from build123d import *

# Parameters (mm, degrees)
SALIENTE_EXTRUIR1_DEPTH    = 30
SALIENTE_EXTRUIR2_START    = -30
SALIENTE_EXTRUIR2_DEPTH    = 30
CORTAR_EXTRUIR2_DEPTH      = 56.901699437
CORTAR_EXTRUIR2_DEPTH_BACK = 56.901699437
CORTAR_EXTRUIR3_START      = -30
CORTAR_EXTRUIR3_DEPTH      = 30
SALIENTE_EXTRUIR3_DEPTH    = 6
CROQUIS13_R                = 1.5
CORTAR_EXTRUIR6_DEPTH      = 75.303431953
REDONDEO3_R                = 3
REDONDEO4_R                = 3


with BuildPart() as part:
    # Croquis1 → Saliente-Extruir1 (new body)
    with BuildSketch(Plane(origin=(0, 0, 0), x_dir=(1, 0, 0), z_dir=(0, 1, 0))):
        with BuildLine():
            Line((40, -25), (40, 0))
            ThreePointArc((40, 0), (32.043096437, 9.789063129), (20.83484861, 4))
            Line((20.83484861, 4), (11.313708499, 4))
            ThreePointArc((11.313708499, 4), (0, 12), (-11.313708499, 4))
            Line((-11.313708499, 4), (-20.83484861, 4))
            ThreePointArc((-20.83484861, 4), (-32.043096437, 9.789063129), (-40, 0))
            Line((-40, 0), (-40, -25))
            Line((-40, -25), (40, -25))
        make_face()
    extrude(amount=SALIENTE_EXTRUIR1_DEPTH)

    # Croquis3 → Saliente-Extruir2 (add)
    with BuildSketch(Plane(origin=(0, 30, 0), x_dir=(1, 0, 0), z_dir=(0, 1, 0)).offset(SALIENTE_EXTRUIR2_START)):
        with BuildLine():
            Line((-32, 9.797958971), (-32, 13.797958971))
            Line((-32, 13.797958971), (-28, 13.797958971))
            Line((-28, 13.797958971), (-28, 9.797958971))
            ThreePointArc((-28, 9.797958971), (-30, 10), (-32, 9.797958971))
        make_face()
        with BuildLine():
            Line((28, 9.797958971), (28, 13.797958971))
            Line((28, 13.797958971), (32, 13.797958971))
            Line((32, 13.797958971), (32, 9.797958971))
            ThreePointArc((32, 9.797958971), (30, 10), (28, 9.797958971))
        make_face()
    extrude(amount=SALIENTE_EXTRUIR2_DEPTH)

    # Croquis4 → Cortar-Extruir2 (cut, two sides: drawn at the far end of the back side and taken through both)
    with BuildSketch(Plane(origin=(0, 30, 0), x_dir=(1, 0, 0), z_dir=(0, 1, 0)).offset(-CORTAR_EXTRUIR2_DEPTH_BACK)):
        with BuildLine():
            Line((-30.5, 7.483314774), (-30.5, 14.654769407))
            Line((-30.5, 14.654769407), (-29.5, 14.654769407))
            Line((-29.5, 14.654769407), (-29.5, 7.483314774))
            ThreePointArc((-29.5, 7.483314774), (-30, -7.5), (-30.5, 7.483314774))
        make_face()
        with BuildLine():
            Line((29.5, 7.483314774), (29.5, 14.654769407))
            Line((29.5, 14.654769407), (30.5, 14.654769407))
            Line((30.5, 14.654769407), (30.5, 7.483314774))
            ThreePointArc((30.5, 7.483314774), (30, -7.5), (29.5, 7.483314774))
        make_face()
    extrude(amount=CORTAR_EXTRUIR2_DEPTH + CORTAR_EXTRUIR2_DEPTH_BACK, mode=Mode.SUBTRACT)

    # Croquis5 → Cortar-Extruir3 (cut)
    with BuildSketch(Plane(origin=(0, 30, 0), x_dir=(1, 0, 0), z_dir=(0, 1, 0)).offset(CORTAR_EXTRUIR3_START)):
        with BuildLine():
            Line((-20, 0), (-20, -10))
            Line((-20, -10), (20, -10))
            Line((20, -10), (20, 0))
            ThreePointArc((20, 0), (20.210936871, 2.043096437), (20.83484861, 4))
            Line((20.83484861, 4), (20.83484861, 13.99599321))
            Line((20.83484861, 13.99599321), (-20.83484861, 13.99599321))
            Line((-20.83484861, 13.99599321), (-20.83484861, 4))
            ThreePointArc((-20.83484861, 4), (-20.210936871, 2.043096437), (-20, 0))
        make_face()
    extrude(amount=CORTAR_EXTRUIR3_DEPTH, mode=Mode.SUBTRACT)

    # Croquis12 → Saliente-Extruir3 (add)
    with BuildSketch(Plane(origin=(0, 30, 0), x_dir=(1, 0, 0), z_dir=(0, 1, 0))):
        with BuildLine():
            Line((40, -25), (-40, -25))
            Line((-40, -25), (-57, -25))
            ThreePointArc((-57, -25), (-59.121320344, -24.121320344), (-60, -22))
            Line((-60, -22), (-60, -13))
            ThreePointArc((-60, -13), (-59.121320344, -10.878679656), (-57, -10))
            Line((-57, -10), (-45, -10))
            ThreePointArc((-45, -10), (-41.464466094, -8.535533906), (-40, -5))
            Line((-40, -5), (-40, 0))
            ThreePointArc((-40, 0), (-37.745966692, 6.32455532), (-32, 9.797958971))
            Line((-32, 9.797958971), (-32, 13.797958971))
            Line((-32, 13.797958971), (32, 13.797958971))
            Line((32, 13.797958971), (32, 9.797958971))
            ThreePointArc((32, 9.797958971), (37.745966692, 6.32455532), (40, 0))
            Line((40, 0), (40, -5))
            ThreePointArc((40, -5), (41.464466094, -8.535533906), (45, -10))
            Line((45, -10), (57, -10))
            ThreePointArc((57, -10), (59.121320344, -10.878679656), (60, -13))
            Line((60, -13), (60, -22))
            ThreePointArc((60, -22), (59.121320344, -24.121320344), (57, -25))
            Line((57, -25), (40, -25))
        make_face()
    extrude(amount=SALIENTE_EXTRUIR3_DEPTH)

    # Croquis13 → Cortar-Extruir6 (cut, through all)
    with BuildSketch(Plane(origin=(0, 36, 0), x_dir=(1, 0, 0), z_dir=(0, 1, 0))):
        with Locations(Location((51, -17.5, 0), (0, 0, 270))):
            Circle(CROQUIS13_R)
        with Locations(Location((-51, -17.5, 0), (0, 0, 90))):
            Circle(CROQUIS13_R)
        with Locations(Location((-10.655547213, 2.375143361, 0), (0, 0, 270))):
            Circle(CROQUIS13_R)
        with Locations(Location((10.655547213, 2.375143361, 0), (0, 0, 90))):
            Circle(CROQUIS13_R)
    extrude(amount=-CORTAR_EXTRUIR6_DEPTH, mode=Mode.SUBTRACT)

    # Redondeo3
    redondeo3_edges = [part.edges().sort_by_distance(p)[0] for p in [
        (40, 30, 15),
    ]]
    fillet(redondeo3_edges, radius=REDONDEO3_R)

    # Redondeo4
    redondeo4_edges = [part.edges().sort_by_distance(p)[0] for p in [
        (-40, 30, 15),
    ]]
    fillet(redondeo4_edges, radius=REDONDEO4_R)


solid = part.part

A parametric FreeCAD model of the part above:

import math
import FreeCAD as App
import Part
import Sketcher
Q = App.Units.Quantity


def edges_at(feature, points):
    """Names of the edges that pass closest to the given points."""
    edges = feature.Shape.Edges
    near = lambda p: min(range(len(edges)), key=lambda i: edges[i].distToShape(Part.Vertex(*p))[0])
    return sorted({f"Edge{near(p) + 1}" for p in points})

doc = App.newDocument("Part")
body = doc.addObject("PartDesign::Body", "Body")

sketch1 = body.newObject("Sketcher::SketchObject", "Sketch")
sketch1.AttachmentSupport = (doc.getObject("XZ_Plane"), [""])
sketch1.MapMode = "FlatFace"
sketch1.addGeometry([
    Part.LineSegment(App.Vector(40, 25, 0), App.Vector(40, 0, 0)),
    Part.ArcOfCircle(Part.Circle(App.Vector(30, 0, 0), App.Vector(0, 0, 1), 10), math.radians(-156), math.radians(0)),
    Part.LineSegment(App.Vector(21, -4, 0), App.Vector(11, -4, 0)),
    Part.ArcOfCircle(Part.Circle(App.Vector(0, 0, 0), App.Vector(0, 0, 1), 12), math.radians(-161), math.radians(-19)),
    Part.LineSegment(App.Vector(-11, -4, 0), App.Vector(-21, -4, 0)),
    Part.ArcOfCircle(Part.Circle(App.Vector(-30, 0, 0), App.Vector(0, 0, 1), 10), math.radians(180), math.radians(336)),
    Part.LineSegment(App.Vector(-40, 0, 0), App.Vector(-40, 25, 0)),
    Part.LineSegment(App.Vector(-40, 25, 0), App.Vector(40, 25, 0)),
], False)
sketch1.addConstraint([
    Sketcher.Constraint("Tangent", 0, 2, 1, 2),
    Sketcher.Constraint("Coincident", 1, 1, 2, 1),
    Sketcher.Constraint("Coincident", 2, 2, 3, 2),
    Sketcher.Constraint("Coincident", 3, 1, 4, 1),
    Sketcher.Constraint("Coincident", 4, 2, 5, 2),
    Sketcher.Constraint("Tangent", 5, 1, 6, 1),
    Sketcher.Constraint("Coincident", 6, 2, 7, 1),
    Sketcher.Constraint("Coincident", 7, 2, 0, 1),
    Sketcher.Constraint("Vertical", 0),
    Sketcher.Constraint("Horizontal", 2),
    Sketcher.Constraint("Horizontal", 4),
    Sketcher.Constraint("Vertical", 6),
    Sketcher.Constraint("Horizontal", 7),
    Sketcher.Constraint("Coincident", 3, 3, -1, 1),
    Sketcher.Constraint("Equal", 1, 5),
    Sketcher.Constraint("Symmetric", 1, 3, 5, 3, -1, 1),
    Sketcher.Constraint("Symmetric", 1, 1, 4, 2, -2),
    Sketcher.Constraint("Radius", 1, Q("10 mm")),
    Sketcher.Constraint("Radius", 3, Q("12 mm")),
    Sketcher.Constraint("DistanceX", 7, 1, 7, 2, Q("80 mm")),
    Sketcher.Constraint("DistanceY", 0, 2, 0, 1, Q("25 mm")),
    Sketcher.Constraint("DistanceY", 1, 1, -1, 1, Q("4 mm")),
])
pad1 = body.newObject("PartDesign::Pad", "Pad")
pad1.Profile = sketch1
pad1.Length = 30
pad1.Reversed = True

sketch2 = body.newObject("Sketcher::SketchObject", "Sketch001")
sketch2.AttachmentSupport = (doc.getObject("XZ_Plane"), [""])
sketch2.MapMode = "FlatFace"
sketch2.addGeometry([
    Part.LineSegment(App.Vector(-32, -13.8, 0), App.Vector(-32, -9.8, 0)),
    Part.ArcOfCircle(Part.Circle(App.Vector(-30, 0, 0), App.Vector(0, 0, 1), 10), math.radians(-102), math.radians(-78)),
    Part.LineSegment(App.Vector(-28, -9.8, 0), App.Vector(-28, -13.8, 0)),
    Part.LineSegment(App.Vector(-28, -13.8, 0), App.Vector(-32, -13.8, 0)),
    Part.LineSegment(App.Vector(28, -13.8, 0), App.Vector(28, -9.8, 0)),
    Part.ArcOfCircle(Part.Circle(App.Vector(30, 0, 0), App.Vector(0, 0, 1), 10), math.radians(-102), math.radians(-78)),
    Part.LineSegment(App.Vector(32, -9.8, 0), App.Vector(32, -13.8, 0)),
    Part.LineSegment(App.Vector(32, -13.8, 0), App.Vector(28, -13.8, 0)),
], False)
sketch2.addConstraint([
    Sketcher.Constraint("Coincident", 0, 2, 1, 1),
    Sketcher.Constraint("Coincident", 1, 2, 2, 1),
    Sketcher.Constraint("Coincident", 2, 2, 3, 1),
    Sketcher.Constraint("Coincident", 3, 2, 0, 1),
    Sketcher.Constraint("Coincident", 4, 2, 5, 1),
    Sketcher.Constraint("Coincident", 5, 2, 6, 1),
    Sketcher.Constraint("Coincident", 6, 2, 7, 1),
    Sketcher.Constraint("Coincident", 7, 2, 4, 1),
    Sketcher.Constraint("Vertical", 0),
    Sketcher.Constraint("Vertical", 2),
    Sketcher.Constraint("Horizontal", 3),
    Sketcher.Constraint("Vertical", 4),
    Sketcher.Constraint("Vertical", 6),
    Sketcher.Constraint("Horizontal", 7),
    Sketcher.Constraint("Equal", 1, 5),
    Sketcher.Constraint("Symmetric", 1, 3, 5, 3, -1, 1),
    Sketcher.Constraint("Symmetric", 1, 2, 4, 2, -2),
    Sketcher.Constraint("Symmetric", 3, 2, 6, 2, -2),
    Sketcher.Constraint("Horizontal", 0, 2, 1, 2),
    Sketcher.Constraint("Equal", 7, 0),
    Sketcher.Constraint("Radius", 1, Q("10 mm")),
    Sketcher.Constraint("DistanceX", 3, 2, 3, 1, Q("4 mm")),
    Sketcher.Constraint("DistanceX", 1, 3, -1, 1, Q("30 mm")),
])
pad2 = body.newObject("PartDesign::Pad", "Pad001")
pad2.Profile = sketch2
pad2.Length = 30
pad2.Reversed = True

sketch3 = body.newObject("Sketcher::SketchObject", "Sketch002")
sketch3.AttachmentSupport = (doc.getObject("XZ_Plane"), [""])
sketch3.MapMode = "FlatFace"
sketch3.AttachmentOffset = App.Placement(App.Vector(0, 0, -30), App.Rotation())
sketch3.addGeometry([
    Part.LineSegment(App.Vector(-30.5, -14.7, 0), App.Vector(-30.5, -7.5, 0)),
    Part.ArcOfCircle(Part.Circle(App.Vector(-30, 0, 0), App.Vector(0, 0, 1), 7.5), math.radians(-86), math.radians(266)),
    Part.LineSegment(App.Vector(-29.5, -7.5, 0), App.Vector(-29.5, -14.7, 0)),
    Part.LineSegment(App.Vector(-29.5, -14.7, 0), App.Vector(-30.5, -14.7, 0)),
    Part.LineSegment(App.Vector(29.5, -14.7, 0), App.Vector(29.5, -7.5, 0)),
    Part.ArcOfCircle(Part.Circle(App.Vector(30, 0, 0), App.Vector(0, 0, 1), 7.5), math.radians(-86), math.radians(266)),
    Part.LineSegment(App.Vector(30.5, -7.5, 0), App.Vector(30.5, -14.7, 0)),
    Part.LineSegment(App.Vector(30.5, -14.7, 0), App.Vector(29.5, -14.7, 0)),
], False)
sketch3.addConstraint([
    Sketcher.Constraint("Coincident", 0, 2, 1, 2),
    Sketcher.Constraint("Coincident", 1, 1, 2, 1),
    Sketcher.Constraint("Coincident", 2, 2, 3, 1),
    Sketcher.Constraint("Coincident", 3, 2, 0, 1),
    Sketcher.Constraint("Coincident", 4, 2, 5, 2),
    Sketcher.Constraint("Coincident", 5, 1, 6, 1),
    Sketcher.Constraint("Coincident", 6, 2, 7, 1),
    Sketcher.Constraint("Coincident", 7, 2, 4, 1),
    Sketcher.Constraint("Vertical", 0),
    Sketcher.Constraint("Vertical", 2),
    Sketcher.Constraint("Horizontal", 3),
    Sketcher.Constraint("Vertical", 4),
    Sketcher.Constraint("Vertical", 6),
    Sketcher.Constraint("Horizontal", 7),
    Sketcher.Constraint("Equal", 1, 5),
    Sketcher.Constraint("Symmetric", 1, 3, 5, 3, -1, 1),
    Sketcher.Constraint("Symmetric", 1, 1, 4, 2, -2),
    Sketcher.Constraint("Symmetric", 3, 2, 6, 2, -2),
    Sketcher.Constraint("Horizontal", 0, 2, 1, 1),
    Sketcher.Constraint("Radius", 1, Q("7.5 mm")),
    Sketcher.Constraint("DistanceX", 3, 2, 3, 1, Q("1 mm")),
    Sketcher.Constraint("DistanceX", 1, 3, -1, 1, Q("30 mm")),
    Sketcher.Constraint("DistanceY", 0, 1, 0, 2, Q("7.171455 mm")),
])
pocket1 = body.newObject("PartDesign::Pocket", "Pocket")
pocket1.Profile = sketch3
pocket1.Type = "ThroughAll"
pocket1.Midplane = True

sketch4 = body.newObject("Sketcher::SketchObject", "Sketch003")
sketch4.AttachmentSupport = (doc.getObject("XZ_Plane"), [""])
sketch4.MapMode = "FlatFace"
sketch4.addGeometry([
    Part.LineSegment(App.Vector(-20, 0, 0), App.Vector(-20, 10, 0)),
    Part.LineSegment(App.Vector(-20, 10, 0), App.Vector(20, 10, 0)),
    Part.LineSegment(App.Vector(20, 10, 0), App.Vector(20, 0, 0)),
    Part.ArcOfCircle(Part.Circle(App.Vector(30, 0, 0), App.Vector(0, 0, 1), 10), math.radians(-180), math.radians(-156)),
    Part.LineSegment(App.Vector(20.8, -4, 0), App.Vector(20.8, -14, 0)),
    Part.LineSegment(App.Vector(20.8, -14, 0), App.Vector(-20.8, -14, 0)),
    Part.LineSegment(App.Vector(-20.8, -14, 0), App.Vector(-20.8, -4, 0)),
    Part.ArcOfCircle(Part.Circle(App.Vector(-30, 0, 0), App.Vector(0, 0, 1), 10), math.radians(-24), math.radians(0)),
], False)
sketch4.addConstraint([
    Sketcher.Constraint("Coincident", 0, 2, 1, 1),
    Sketcher.Constraint("Coincident", 1, 2, 2, 1),
    Sketcher.Constraint("Tangent", 2, 2, 3, 1),
    Sketcher.Constraint("Coincident", 3, 2, 4, 1),
    Sketcher.Constraint("Coincident", 4, 2, 5, 1),
    Sketcher.Constraint("Coincident", 5, 2, 6, 1),
    Sketcher.Constraint("Coincident", 6, 2, 7, 1),
    Sketcher.Constraint("Tangent", 7, 2, 0, 1),
    Sketcher.Constraint("Vertical", 0),
    Sketcher.Constraint("Horizontal", 1),
    Sketcher.Constraint("Vertical", 2),
    Sketcher.Constraint("Vertical", 4),
    Sketcher.Constraint("Horizontal", 5),
    Sketcher.Constraint("Vertical", 6),
    Sketcher.Constraint("Equal", 3, 7),
    Sketcher.Constraint("Symmetric", 3, 3, 7, 3, -1, 1),
    Sketcher.Constraint("Symmetric", 3, 2, 6, 2, -2),
    Sketcher.Constraint("Radius", 3, Q("10 mm")),
    Sketcher.Constraint("DistanceX", 1, 1, 1, 2, Q("40 mm")),
    Sketcher.Constraint("DistanceY", 0, 1, 0, 2, Q("10 mm")),
    Sketcher.Constraint("DistanceY", 3, 2, -1, 1, Q("4 mm")),
    Sketcher.Constraint("DistanceY", 4, 2, 4, 1, Q("9.995993 mm")),
])
pocket2 = body.newObject("PartDesign::Pocket", "Pocket001")
pocket2.Profile = sketch4
pocket2.Length = 30

sketch5 = body.newObject("Sketcher::SketchObject", "Sketch004")
sketch5.AttachmentSupport = (doc.getObject("XZ_Plane"), [""])
sketch5.MapMode = "FlatFace"
sketch5.AttachmentOffset = App.Placement(App.Vector(0, 0, -30), App.Rotation())
sketch5.addGeometry([
    Part.ArcOfCircle(Part.Circle(App.Vector(-57, 22, 0), App.Vector(0, 0, 1), 3), math.radians(90), math.radians(180)),
    Part.LineSegment(App.Vector(-57, 25, 0), App.Vector(57, 25, 0)),
    Part.ArcOfCircle(Part.Circle(App.Vector(57, 22, 0), App.Vector(0, 0, 1), 3), math.radians(0), math.radians(90)),
    Part.LineSegment(App.Vector(60, 22, 0), App.Vector(60, 13, 0)),
    Part.ArcOfCircle(Part.Circle(App.Vector(57, 13, 0), App.Vector(0, 0, 1), 3), math.radians(-90), math.radians(0)),
    Part.LineSegment(App.Vector(57, 10, 0), App.Vector(45, 10, 0)),
    Part.ArcOfCircle(Part.Circle(App.Vector(45, 5, 0), App.Vector(0, 0, 1), 5), math.radians(90), math.radians(180)),
    Part.LineSegment(App.Vector(40, 5, 0), App.Vector(40, 0, 0)),
    Part.ArcOfCircle(Part.Circle(App.Vector(30, 0, 0), App.Vector(0, 0, 1), 10), math.radians(-78), math.radians(0)),
    Part.LineSegment(App.Vector(32, -9.8, 0), App.Vector(32, -13.8, 0)),
    Part.LineSegment(App.Vector(32, -13.8, 0), App.Vector(-32, -13.8, 0)),
    Part.LineSegment(App.Vector(-32, -13.8, 0), App.Vector(-32, -9.8, 0)),
    Part.ArcOfCircle(Part.Circle(App.Vector(-30, 0, 0), App.Vector(0, 0, 1), 10), math.radians(-180), math.radians(-102)),
    Part.LineSegment(App.Vector(-40, 0, 0), App.Vector(-40, 5, 0)),
    Part.ArcOfCircle(Part.Circle(App.Vector(-45, 5, 0), App.Vector(0, 0, 1), 5), math.radians(0), math.radians(90)),
    Part.LineSegment(App.Vector(-45, 10, 0), App.Vector(-57, 10, 0)),
    Part.ArcOfCircle(Part.Circle(App.Vector(-57, 13, 0), App.Vector(0, 0, 1), 3), math.radians(180), math.radians(270)),
    Part.LineSegment(App.Vector(-60, 13, 0), App.Vector(-60, 22, 0)),
], False)
sketch5.addConstraint([
    Sketcher.Constraint("Tangent", 0, 1, 1, 1),
    Sketcher.Constraint("Tangent", 1, 2, 2, 2),
    Sketcher.Constraint("Tangent", 2, 1, 3, 1),
    Sketcher.Constraint("Tangent", 3, 2, 4, 2),
    Sketcher.Constraint("Tangent", 4, 1, 5, 1),
    Sketcher.Constraint("Tangent", 5, 2, 6, 1),
    Sketcher.Constraint("Tangent", 6, 2, 7, 1),
    Sketcher.Constraint("Tangent", 7, 2, 8, 2),
    Sketcher.Constraint("Coincident", 8, 1, 9, 1),
    Sketcher.Constraint("Coincident", 9, 2, 10, 1),
    Sketcher.Constraint("Coincident", 10, 2, 11, 1),
    Sketcher.Constraint("Coincident", 11, 2, 12, 2),
    Sketcher.Constraint("Tangent", 12, 1, 13, 1),
    Sketcher.Constraint("Tangent", 13, 2, 14, 1),
    Sketcher.Constraint("Tangent", 14, 2, 15, 1),
    Sketcher.Constraint("Tangent", 15, 2, 16, 2),
    Sketcher.Constraint("Tangent", 16, 1, 17, 1),
    Sketcher.Constraint("Tangent", 17, 2, 0, 2),
    Sketcher.Constraint("Horizontal", 1),
    Sketcher.Constraint("Vertical", 3),
    Sketcher.Constraint("Horizontal", 5),
    Sketcher.Constraint("Vertical", 7),
    Sketcher.Constraint("Vertical", 9),
    Sketcher.Constraint("Horizontal", 10),
    Sketcher.Constraint("Vertical", 11),
    Sketcher.Constraint("Vertical", 13),
    Sketcher.Constraint("Horizontal", 15),
    Sketcher.Constraint("Vertical", 17),
    Sketcher.Constraint("Equal", 0, 2),
    Sketcher.Constraint("Equal", 2, 4),
    Sketcher.Constraint("Equal", 8, 12),
    Sketcher.Constraint("Equal", 6, 14),
    Sketcher.Constraint("Equal", 4, 16),
    Sketcher.Constraint("Symmetric", 8, 3, 12, 3, -1, 1),
    Sketcher.Constraint("Symmetric", 4, 3, 16, 3, -2),
    Sketcher.Constraint("Symmetric", 8, 1, 11, 2, -2),
    Sketcher.Constraint("Radius", 0, Q("3 mm")),
    Sketcher.Constraint("Radius", 6, Q("5 mm")),
    Sketcher.Constraint("Radius", 8, Q("10 mm")),
    Sketcher.Constraint("DistanceX", 1, 1, 1, 2, Q("114 mm")),
    Sketcher.Constraint("DistanceX", 5, 2, 5, 1, Q("12 mm")),
    Sketcher.Constraint("DistanceX", 10, 2, 10, 1, Q("64 mm")),
    Sketcher.Constraint("DistanceY", 3, 2, 3, 1, Q("9 mm")),
    Sketcher.Constraint("DistanceY", 7, 2, 7, 1, Q("5 mm")),
    Sketcher.Constraint("DistanceY", 9, 2, 9, 1, Q("4 mm")),
])
pad3 = body.newObject("PartDesign::Pad", "Pad002")
pad3.Profile = sketch5
pad3.Length = 6
pad3.Reversed = True

sketch6 = body.newObject("Sketcher::SketchObject", "Sketch005")
sketch6.AttachmentSupport = (doc.getObject("XZ_Plane"), [""])
sketch6.MapMode = "FlatFace"
sketch6.AttachmentOffset = App.Placement(App.Vector(0, 0, -36), App.Rotation())
sketch6.addGeometry([
    Part.Circle(App.Vector(51, 17.5, 0), App.Vector(0, 0, 1), 1.5),
    Part.Circle(App.Vector(-51, 17.5, 0), App.Vector(0, 0, 1), 1.5),
    Part.Circle(App.Vector(-10.7, -2.4, 0), App.Vector(0, 0, 1), 1.5),
    Part.Circle(App.Vector(10.7, -2.4, 0), App.Vector(0, 0, 1), 1.5),
], False)
sketch6.addConstraint([
    Sketcher.Constraint("Equal", 0, 1),
    Sketcher.Constraint("Equal", 1, 2),
    Sketcher.Constraint("Equal", 2, 3),
    Sketcher.Constraint("Symmetric", 0, 3, 1, 3, -2),
    Sketcher.Constraint("Symmetric", 2, 3, 3, 3, -2),
    Sketcher.Constraint("Diameter", 0, Q("3 mm")),
    Sketcher.Constraint("DistanceX", -1, 1, 0, 3, Q("51 mm")),
    Sketcher.Constraint("DistanceY", -1, 1, 0, 3, Q("17.5 mm")),
    Sketcher.Constraint("DistanceX", 2, 3, -1, 1, Q("10.655547 mm")),
    Sketcher.Constraint("DistanceY", 2, 3, -1, 1, Q("2.375143 mm")),
])
pocket3 = body.newObject("PartDesign::Pocket", "Pocket002")
pocket3.Profile = sketch6
pocket3.Type = "ThroughAll"
pocket3.Reversed = True
doc.recompute()

fillet = body.newObject("PartDesign::Fillet", "Fillet")
fillet.Base = (pocket3, edges_at(pocket3, [(40, 30, 15)]))
fillet.Radius = 3
doc.recompute()

fillet2 = body.newObject("PartDesign::Fillet", "Fillet001")
fillet2.Base = (fillet, edges_at(fillet, [(-40, 30, 15)]))
fillet2.Radius = 3

doc.recompute()
